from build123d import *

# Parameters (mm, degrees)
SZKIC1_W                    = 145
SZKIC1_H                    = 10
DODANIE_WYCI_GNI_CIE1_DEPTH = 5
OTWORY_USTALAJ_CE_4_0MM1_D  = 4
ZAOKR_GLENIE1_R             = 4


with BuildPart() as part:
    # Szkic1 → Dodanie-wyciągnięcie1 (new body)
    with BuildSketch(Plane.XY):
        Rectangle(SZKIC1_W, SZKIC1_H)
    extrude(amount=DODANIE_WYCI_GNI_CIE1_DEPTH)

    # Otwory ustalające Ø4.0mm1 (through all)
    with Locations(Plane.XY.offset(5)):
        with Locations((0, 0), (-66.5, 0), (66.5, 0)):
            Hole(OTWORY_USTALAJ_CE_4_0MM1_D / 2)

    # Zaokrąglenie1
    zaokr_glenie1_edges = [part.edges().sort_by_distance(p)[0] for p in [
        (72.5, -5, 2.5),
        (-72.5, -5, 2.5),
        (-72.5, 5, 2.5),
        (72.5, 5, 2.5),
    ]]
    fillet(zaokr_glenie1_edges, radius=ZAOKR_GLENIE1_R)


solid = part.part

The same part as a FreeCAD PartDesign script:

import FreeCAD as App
import Part
import Sketcher

V = App.Vector


def edges_at(feature, points):
    """Names of the edges that pass closest to the given points."""
    edges = feature.Shape.Edges
    near = lambda p: min(range(len(edges)), key=lambda i: edges[i].distToShape(Part.Vertex(*p))[0])
    return sorted({f"Edge{near(p) + 1}" for p in points})


def add_polygon(sketch, points):
    """Adds a closed chain of lines whose ends are joined by coincident constraints."""
    first, n = sketch.GeometryCount, len(points)
    for a, b in zip(points, points[1:] + points[:1]):
        sketch.addGeometry(Part.LineSegment(App.Vector(*a, 0), App.Vector(*b, 0)), False)
    for i in range(n):
        sketch.addConstraint(Sketcher.Constraint("Coincident", first + i, 2, first + (i + 1) % n, 1))

doc = App.newDocument("Part")
params = doc.addObject("Spreadsheet::Sheet", "Params")
for row, (alias, value) in enumerate([
    ("sketch1_width", "145 mm"),
    ("sketch1_height", "10 mm"),
    ("pad1_length", "5 mm"),
    ("sketch2_diameter", "4 mm"),
    ("hole_diameter", "4 mm"),
    ("fillet_radius", "4 mm"),
], start=1):
    params.set(f"A{row}", alias)
    params.set(f"B{row}", "=" + value)
    params.setAlias(f"B{row}", alias)

body = doc.addObject("PartDesign::Body", "Body")

# Sketch on XY plane
sketch1 = body.newObject("Sketcher::SketchObject", "Sketch")
sketch1.AttachmentSupport = (doc.getObject("XY_Plane"), [""])
sketch1.MapMode = "FlatFace"
add_polygon(sketch1, [(-72.5, 5), (-72.5, -5), (72.5, -5), (72.5, 5)])  # lines 0-3
sketch1.addConstraint([
    Sketcher.Constraint("Vertical", 0),
    Sketcher.Constraint("Horizontal", 1),
    Sketcher.Constraint("Vertical", 2),
    Sketcher.Constraint("Horizontal", 3),
    Sketcher.Constraint("Symmetric", 0, 2, 2, 2, -1, 1),
    Sketcher.Constraint("DistanceX", 1, 1, 1, 2, 145.0),
    Sketcher.Constraint("DistanceY", 0, 2, 0, 1, 10.0),
])
sketch1.setExpression("Constraints[9]", "Params.sketch1_width")
sketch1.setExpression("Constraints[10]", "Params.sketch1_height")
pad1 = body.newObject("PartDesign::Pad", "Pad")
pad1.Profile = sketch1
pad1.setExpression("Length", "Params.pad1_length")

# Sketch on XY plane
sketch2 = body.newObject("Sketcher::SketchObject", "Sketch001")
sketch2.AttachmentSupport = (doc.getObject("XY_Plane"), [""])
sketch2.MapMode = "FlatFace"
sketch2.AttachmentOffset = App.Placement(V(0, 0, 5), App.Rotation())
sketch2.addGeometry([
    Part.Circle(V(0, 0, 0), V(0, 0, 1), 2),
    Part.Circle(V(-66.5, 0, 0), V(0, 0, 1), 2),
    Part.Circle(V(66.5, 0, 0), V(0, 0, 1), 2),
], False)
sketch2.addConstraint([
    Sketcher.Constraint("Coincident", 0, 3, -1, 1),
    Sketcher.Constraint("Equal", 0, 1),
    Sketcher.Constraint("Equal", 1, 2),
    Sketcher.Constraint("Symmetric", 1, 3, 2, 3, -1, 1),
    Sketcher.Constraint("PointOnObject", 1, 3, -1),
    Sketcher.Constraint("Diameter", 0, 4.0),
    Sketcher.Constraint("DistanceX", 1, 3, 2, 3, 133.0),
])
sketch2.setExpression("Constraints[5]", "Params.sketch2_diameter")
doc.recompute()
hole = body.newObject("PartDesign::Hole", "Hole")
hole.Profile = sketch2
hole.ThreadType = "None"
hole.setExpression("Diameter", "Params.hole_diameter")
hole.DepthType = "ThroughAll"
doc.recompute()

fillet = body.newObject("PartDesign::Fillet", "Fillet")
fillet.Base = (hole, edges_at(hole, [
    (72.5, -5, 2.5),
    (-72.5, -5, 2.5),
    (-72.5, 5, 2.5),
    (72.5, 5, 2.5),
]))
fillet.setExpression("Radius", "Params.fillet_radius")

doc.recompute()
